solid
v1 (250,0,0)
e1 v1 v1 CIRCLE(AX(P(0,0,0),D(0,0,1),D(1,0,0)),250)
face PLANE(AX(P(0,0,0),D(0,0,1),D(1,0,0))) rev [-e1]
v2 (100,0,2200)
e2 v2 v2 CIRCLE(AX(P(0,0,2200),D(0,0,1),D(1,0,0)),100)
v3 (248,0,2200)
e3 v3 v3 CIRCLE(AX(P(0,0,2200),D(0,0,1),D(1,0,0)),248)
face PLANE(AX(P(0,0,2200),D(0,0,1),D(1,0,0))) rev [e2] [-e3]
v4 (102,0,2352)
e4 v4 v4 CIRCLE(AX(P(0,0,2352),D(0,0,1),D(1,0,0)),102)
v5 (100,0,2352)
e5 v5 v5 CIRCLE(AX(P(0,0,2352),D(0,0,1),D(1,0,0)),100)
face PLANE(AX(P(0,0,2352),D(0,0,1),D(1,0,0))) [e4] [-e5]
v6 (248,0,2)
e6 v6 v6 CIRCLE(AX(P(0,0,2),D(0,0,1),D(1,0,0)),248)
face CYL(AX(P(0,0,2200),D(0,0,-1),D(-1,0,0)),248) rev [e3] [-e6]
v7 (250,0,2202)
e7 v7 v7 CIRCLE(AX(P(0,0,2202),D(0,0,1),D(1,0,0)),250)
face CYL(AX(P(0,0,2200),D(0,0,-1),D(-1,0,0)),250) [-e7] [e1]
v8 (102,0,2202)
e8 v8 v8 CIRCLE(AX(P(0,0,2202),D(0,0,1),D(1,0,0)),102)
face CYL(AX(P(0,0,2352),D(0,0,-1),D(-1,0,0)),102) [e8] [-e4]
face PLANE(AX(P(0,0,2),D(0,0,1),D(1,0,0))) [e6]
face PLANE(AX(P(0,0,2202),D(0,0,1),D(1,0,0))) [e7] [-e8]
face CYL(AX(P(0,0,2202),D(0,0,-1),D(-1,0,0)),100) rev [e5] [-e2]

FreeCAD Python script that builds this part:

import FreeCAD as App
import Part
import Sketcher
from FreeCAD import Vector
Q = App.Units.Quantity


def faces_at(feature, points):
    """Names of the faces that lie closest to the given points."""
    faces = feature.Shape.Faces
    near = lambda p: min(range(len(faces)), key=lambda i: faces[i].distToShape(Part.Vertex(*p))[0])
    return sorted({f"Face{near(p) + 1}" for p in points})

doc = App.newDocument("Part")
params = doc.addObject("Spreadsheet::Sheet", "Params")
for row, (alias, value) in enumerate([
    ("sketch1_diameter", "500 mm"),
    ("pad1_length", "2200 mm"),
    ("thickness_wall", "2 mm"),
    ("sketch2_diameter", "500 mm"),
    ("sketch2_diameter2", "200 mm"),
    ("pad2_length", "2 mm"),
    ("sketch3_diameter", "204 mm"),
    ("sketch3_diameter2", "200 mm"),
    ("pad3_length", "150 mm"),
], start=1):
    params.set(f"A{row}", alias)
    params.set(f"B{row}", "=" + value)
    params.setAlias(f"B{row}", alias)

body = doc.addObject("PartDesign::Body", "Body")

# Sketch on XY plane
sketch1 = body.newObject("Sketcher::SketchObject", "Sketch")
sketch1.AttachmentSupport = (doc.getObject("XY_Plane"), [""])
sketch1.MapMode = "FlatFace"
sketch1.addGeometry(Part.Circle(Vector(0, 0, 0), Vector(0, 0, 1), 250), False)
sketch1.addConstraint([
    Sketcher.Constraint("Coincident", 0, 3, -1, 1),
    Sketcher.Constraint("Diameter", 0, Q("500 mm")),
])
sketch1.setExpression("Constraints[1]", "Params.sketch1_diameter")
pad1 = body.newObject("PartDesign::Pad", "Pad")
pad1.Profile = sketch1
pad1.setExpression("Length", "Params.pad1_length")
doc.recompute()

thickness = body.newObject("PartDesign::Thickness", "Thickness")
thickness.Base = (pad1, faces_at(pad1, [(0, 0, 2200)]))
thickness.setExpression("Value", "Params.thickness_wall")
thickness.Reversed = True
thickness.Join = "Intersection"

# Sketch on XY plane
sketch2 = body.newObject("Sketcher::SketchObject", "Sketch001")
sketch2.AttachmentSupport = (doc.getObject("XY_Plane"), [""])
sketch2.MapMode = "FlatFace"
sketch2.AttachmentOffset = App.Placement(Vector(0, 0, 2200), App.Rotation())
sketch2.addGeometry([
    Part.Circle(Vector(0, 0, 0), Vector(0, 0, 1), 250),
    Part.Circle(Vector(0, 0, 0), Vector(0, 0, 1), 100),
], False)
sketch2.addConstraint([
    Sketcher.Constraint("Coincident", 0, 3, -1, 1),
    Sketcher.Constraint("Coincident", 1, 3, -1, 1),
    Sketcher.Constraint("Diameter", 0, Q("500 mm")),
    Sketcher.Constraint("Diameter", 1, Q("200 mm")),
])
sketch2.setExpression("Constraints[2]", "Params.sketch2_diameter")
sketch2.setExpression("Constraints[3]", "Params.sketch2_diameter2")
pad2 = body.newObject("PartDesign::Pad", "Pad001")
pad2.Profile = sketch2
pad2.setExpression("Length", "Params.pad2_length")

# Sketch on XY plane
sketch3 = body.newObject("Sketcher::SketchObject", "Sketch002")
sketch3.AttachmentSupport = (doc.getObject("XY_Plane"), [""])
sketch3.MapMode = "FlatFace"
sketch3.AttachmentOffset = App.Placement(Vector(0, 0, 2202), App.Rotation())
sketch3.addGeometry([
    Part.Circle(Vector(0, 0, 0), Vector(0, 0, 1), 102),
    Part.Circle(Vector(0, 0, 0), Vector(0, 0, 1), 100),
], False)
sketch3.addConstraint([
    Sketcher.Constraint("Coincident", 0, 3, -1, 1),
    Sketcher.Constraint("Coincident", 1, 3, -1, 1),
    Sketcher.Constraint("Diameter", 0, Q("204 mm")),
    Sketcher.Constraint("Diameter", 1, Q("200 mm")),
])
sketch3.setExpression("Constraints[2]", "Params.sketch3_diameter")
sketch3.setExpression("Constraints[3]", "Params.sketch3_diameter2")
pad3 = body.newObject("PartDesign::Pad", "Pad002")
pad3.Profile = sketch3
pad3.setExpression("Length", "Params.pad3_length")

doc.recompute()
